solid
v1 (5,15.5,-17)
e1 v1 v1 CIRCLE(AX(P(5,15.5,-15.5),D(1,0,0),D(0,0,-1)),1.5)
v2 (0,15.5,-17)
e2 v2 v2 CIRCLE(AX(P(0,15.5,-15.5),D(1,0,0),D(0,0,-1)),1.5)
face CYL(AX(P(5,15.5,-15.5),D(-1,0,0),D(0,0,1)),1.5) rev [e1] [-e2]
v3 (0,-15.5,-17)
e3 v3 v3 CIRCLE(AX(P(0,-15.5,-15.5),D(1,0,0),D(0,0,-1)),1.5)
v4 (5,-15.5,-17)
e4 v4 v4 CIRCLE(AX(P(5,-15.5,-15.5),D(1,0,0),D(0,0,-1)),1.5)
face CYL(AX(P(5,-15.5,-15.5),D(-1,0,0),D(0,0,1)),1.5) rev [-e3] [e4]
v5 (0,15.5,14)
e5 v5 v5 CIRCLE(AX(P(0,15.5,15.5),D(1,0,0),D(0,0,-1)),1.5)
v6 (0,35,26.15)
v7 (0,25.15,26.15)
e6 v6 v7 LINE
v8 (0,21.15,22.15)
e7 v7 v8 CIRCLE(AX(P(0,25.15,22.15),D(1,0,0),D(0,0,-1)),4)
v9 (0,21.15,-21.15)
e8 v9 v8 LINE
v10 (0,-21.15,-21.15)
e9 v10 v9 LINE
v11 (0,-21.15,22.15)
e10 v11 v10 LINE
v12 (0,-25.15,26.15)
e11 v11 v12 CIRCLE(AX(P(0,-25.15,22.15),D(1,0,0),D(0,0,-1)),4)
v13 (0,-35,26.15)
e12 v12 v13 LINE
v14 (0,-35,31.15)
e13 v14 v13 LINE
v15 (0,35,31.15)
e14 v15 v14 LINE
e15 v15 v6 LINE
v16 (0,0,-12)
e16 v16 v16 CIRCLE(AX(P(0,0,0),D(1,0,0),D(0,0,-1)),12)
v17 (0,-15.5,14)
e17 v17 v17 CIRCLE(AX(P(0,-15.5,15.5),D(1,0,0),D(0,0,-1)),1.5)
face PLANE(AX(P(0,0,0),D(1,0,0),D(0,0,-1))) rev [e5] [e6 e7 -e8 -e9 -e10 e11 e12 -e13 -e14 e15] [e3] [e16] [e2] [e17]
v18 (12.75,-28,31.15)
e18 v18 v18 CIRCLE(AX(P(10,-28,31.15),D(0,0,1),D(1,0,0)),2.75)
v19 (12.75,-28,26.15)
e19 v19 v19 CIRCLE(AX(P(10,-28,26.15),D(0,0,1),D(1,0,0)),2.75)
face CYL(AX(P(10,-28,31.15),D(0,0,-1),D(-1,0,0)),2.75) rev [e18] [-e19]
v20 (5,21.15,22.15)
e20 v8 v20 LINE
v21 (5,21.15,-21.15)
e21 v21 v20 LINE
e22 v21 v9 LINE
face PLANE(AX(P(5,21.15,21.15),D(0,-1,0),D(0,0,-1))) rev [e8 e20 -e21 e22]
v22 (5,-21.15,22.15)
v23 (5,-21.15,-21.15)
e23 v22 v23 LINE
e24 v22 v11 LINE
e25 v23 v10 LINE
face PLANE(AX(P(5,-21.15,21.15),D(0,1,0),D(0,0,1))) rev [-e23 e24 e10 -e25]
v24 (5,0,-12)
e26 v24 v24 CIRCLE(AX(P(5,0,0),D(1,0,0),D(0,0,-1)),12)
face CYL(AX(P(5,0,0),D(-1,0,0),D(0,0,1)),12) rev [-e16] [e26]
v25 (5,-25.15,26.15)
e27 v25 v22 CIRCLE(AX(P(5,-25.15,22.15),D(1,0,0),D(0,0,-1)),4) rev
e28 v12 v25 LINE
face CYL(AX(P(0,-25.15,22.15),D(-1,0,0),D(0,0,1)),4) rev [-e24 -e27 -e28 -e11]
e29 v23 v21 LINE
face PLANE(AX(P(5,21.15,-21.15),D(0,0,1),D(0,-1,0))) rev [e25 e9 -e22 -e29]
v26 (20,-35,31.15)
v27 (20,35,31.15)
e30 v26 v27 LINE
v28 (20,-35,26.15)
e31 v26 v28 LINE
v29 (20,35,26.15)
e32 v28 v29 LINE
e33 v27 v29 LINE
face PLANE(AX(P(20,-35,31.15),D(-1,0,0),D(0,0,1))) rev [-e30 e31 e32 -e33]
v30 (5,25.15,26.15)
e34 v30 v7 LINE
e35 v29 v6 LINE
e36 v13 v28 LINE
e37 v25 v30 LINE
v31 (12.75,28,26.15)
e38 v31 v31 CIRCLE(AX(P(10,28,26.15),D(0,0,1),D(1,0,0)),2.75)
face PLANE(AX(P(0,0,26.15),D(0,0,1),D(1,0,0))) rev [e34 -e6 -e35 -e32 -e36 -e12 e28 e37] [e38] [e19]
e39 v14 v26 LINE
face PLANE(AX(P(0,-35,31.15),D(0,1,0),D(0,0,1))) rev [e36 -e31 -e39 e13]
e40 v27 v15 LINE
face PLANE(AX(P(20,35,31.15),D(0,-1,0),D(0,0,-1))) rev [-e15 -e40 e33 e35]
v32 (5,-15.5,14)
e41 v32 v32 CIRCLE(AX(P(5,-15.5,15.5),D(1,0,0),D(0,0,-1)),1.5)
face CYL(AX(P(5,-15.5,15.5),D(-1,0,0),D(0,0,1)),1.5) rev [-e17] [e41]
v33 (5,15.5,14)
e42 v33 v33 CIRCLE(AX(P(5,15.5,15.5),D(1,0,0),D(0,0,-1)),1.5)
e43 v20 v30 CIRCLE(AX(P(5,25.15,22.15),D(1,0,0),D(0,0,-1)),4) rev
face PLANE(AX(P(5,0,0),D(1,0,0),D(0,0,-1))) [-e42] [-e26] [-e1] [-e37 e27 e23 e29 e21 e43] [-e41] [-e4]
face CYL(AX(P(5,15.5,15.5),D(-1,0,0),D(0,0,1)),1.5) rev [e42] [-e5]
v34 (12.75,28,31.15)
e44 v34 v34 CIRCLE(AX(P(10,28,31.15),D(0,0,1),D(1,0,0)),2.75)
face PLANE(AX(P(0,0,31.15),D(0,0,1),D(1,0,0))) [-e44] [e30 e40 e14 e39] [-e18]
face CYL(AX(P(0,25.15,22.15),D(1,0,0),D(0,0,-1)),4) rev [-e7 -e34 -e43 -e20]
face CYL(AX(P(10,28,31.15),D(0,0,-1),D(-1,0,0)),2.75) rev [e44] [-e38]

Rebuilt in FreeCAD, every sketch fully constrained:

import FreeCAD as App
import Part
import Sketcher

V = App.Vector


def edges_at(feature, points):
    """Names of the edges that pass closest to the given points."""
    edges = feature.Shape.Edges
    near = lambda p: min(range(len(edges)), key=lambda i: edges[i].distToShape(Part.Vertex(*p))[0])
    return sorted({f"Edge{near(p) + 1}" for p in points})


def add_polygon(sketch, points):
    """Adds a closed chain of lines whose ends are joined by coincident constraints."""
    first, n = sketch.GeometryCount, len(points)
    for a, b in zip(points, points[1:] + points[:1]):
        sketch.addGeometry(Part.LineSegment(App.Vector(*a, 0), App.Vector(*b, 0)), False)
    for i in range(n):
        sketch.addConstraint(Sketcher.Constraint("Coincident", first + i, 2, first + (i + 1) % n, 1))

doc = App.newDocument("Part")
body = doc.addObject("PartDesign::Body", "Body")

# Sketch on YZ plane
sketch1 = body.newObject("Sketcher::SketchObject", "Sketch")
sketch1.AttachmentSupport = (doc.getObject("YZ_Plane"), [""])
sketch1.MapMode = "FlatFace"
add_polygon(sketch1, [(21.1, 21.1), (-21.1, 21.1), (-21.1, -21.1), (21.1, -21.1)])  # lines 0-3
sketch1.addGeometry(Part.Circle(V(-15.5, 15.5, 0), V(0, 0, 1), 1.5), False)  # 4
sketch1.addGeometry(Part.Circle(V(-15.5, -15.5, 0), V(0, 0, 1), 1.5), False)  # 5
sketch1.addGeometry(Part.Circle(V(15.5, 15.5, 0), V(0, 0, 1), 1.5), False)  # 6
sketch1.addGeometry(Part.Circle(V(0, 0, 0), V(0, 0, 1), 12), False)  # 7
sketch1.addGeometry(Part.Circle(V(15.5, -15.5, 0), V(0, 0, 1), 1.5), False)  # 8
sketch1.addConstraint(Sketcher.Constraint("Horizontal", 0))
sketch1.addConstraint(Sketcher.Constraint("Vertical", 1))
sketch1.addConstraint(Sketcher.Constraint("Horizontal", 2))
sketch1.addConstraint(Sketcher.Constraint("Vertical", 3))
sketch1.addConstraint(Sketcher.Constraint("Coincident", 7, 3, -1, 1))
sketch1.addConstraint(Sketcher.Constraint("Equal", 4, 5))
sketch1.addConstraint(Sketcher.Constraint("Equal", 5, 6))
sketch1.addConstraint(Sketcher.Constraint("Equal", 6, 8))
sketch1.addConstraint(Sketcher.Constraint("Symmetric", 5, 3, 6, 3, -1, 1))
sketch1.addConstraint(Sketcher.Constraint("Symmetric", 4, 3, 8, 3, -1, 1))
sketch1.addConstraint(Sketcher.Constraint("Symmetric", 0, 2, 2, 2, -1, 1))
sketch1.addConstraint(Sketcher.Constraint("Symmetric", 4, 3, 6, 3, -2))
sketch1.addConstraint(Sketcher.Constraint("Equal", 2, 1))
sketch1.addConstraint(Sketcher.Constraint("Diameter", 4, 3.0))
sketch1.addConstraint(Sketcher.Constraint("Diameter", 7, 24.0))
sketch1.addConstraint(Sketcher.Constraint("DistanceX", 0, 2, 0, 1, 42.3))
sketch1.addConstraint(Sketcher.Constraint("DistanceY", 5, 3, 4, 3, 31.0))
sketch1.addConstraint(Sketcher.Constraint("DistanceX", 4, 3, 6, 3, 31.0))
pad1 = body.newObject("PartDesign::Pad", "Pad")
pad1.Profile = sketch1
pad1.Length = 5

# Sketch on XY plane
sketch2 = body.newObject("Sketcher::SketchObject", "Sketch001")
sketch2.AttachmentSupport = (doc.getObject("XY_Plane"), [""])
sketch2.MapMode = "FlatFace"
sketch2.AttachmentOffset = App.Placement(V(0, 0, 21.15), App.Rotation())
add_polygon(sketch2, [(0, 21), (0, -21), (5, -21), (5, 21)])  # lines 0-3
sketch2.addConstraint(Sketcher.Constraint("Vertical", 0))
sketch2.addConstraint(Sketcher.Constraint("Horizontal", 1))
sketch2.addConstraint(Sketcher.Constraint("Vertical", 2))
sketch2.addConstraint(Sketcher.Constraint("Horizontal", 3))
sketch2.addConstraint(Sketcher.Constraint("Symmetric", 0, 2, 3, 2, -1, 1))
sketch2.addConstraint(Sketcher.Constraint("DistanceX", 1, 1, 1, 2, 5.0))
sketch2.addConstraint(Sketcher.Constraint("DistanceY", 0, 2, 0, 1, 42.3))
pad2 = body.newObject("PartDesign::Pad", "Pad001")
pad2.Profile = sketch2
pad2.Length = 5

# Sketch on XY plane
sketch3 = body.newObject("Sketcher::SketchObject", "Sketch002")
sketch3.AttachmentSupport = (doc.getObject("XY_Plane"), [""])
sketch3.MapMode = "FlatFace"
sketch3.AttachmentOffset = App.Placement(V(0, 0, 26.15), App.Rotation())
add_polygon(sketch3, [(0, 35), (0, -35), (20, -35), (20, 35)])  # lines 0-3
sketch3.addGeometry(Part.Circle(V(10, -28, 0), V(0, 0, 1), 2.8), False)  # 4
sketch3.addGeometry(Part.Circle(V(10, 28, 0), V(0, 0, 1), 2.8), False)  # 5
sketch3.addConstraint(Sketcher.Constraint("Vertical", 0))
sketch3.addConstraint(Sketcher.Constraint("Horizontal", 1))
sketch3.addConstraint(Sketcher.Constraint("Vertical", 2))
sketch3.addConstraint(Sketcher.Constraint("Horizontal", 3))
sketch3.addConstraint(Sketcher.Constraint("Equal", 4, 5))
sketch3.addConstraint(Sketcher.Constraint("Symmetric", 0, 2, 3, 2, -1, 1))
sketch3.addConstraint(Sketcher.Constraint("Symmetric", 4, 3, 5, 3, -1))
sketch3.addConstraint(Sketcher.Constraint("Diameter", 4, 5.5))
sketch3.addConstraint(Sketcher.Constraint("DistanceX", 1, 1, 1, 2, 20.0))
sketch3.addConstraint(Sketcher.Constraint("DistanceY", 0, 2, 0, 1, 70.0))
sketch3.addConstraint(Sketcher.Constraint("DistanceX", -1, 1, 4, 3, 10.0))
sketch3.addConstraint(Sketcher.Constraint("DistanceY", 4, 3, -1, 1, 28.0))
pad3 = body.newObject("PartDesign::Pad", "Pad002")
pad3.Profile = sketch3
pad3.Length = 5
doc.recompute()

fillet = body.newObject("PartDesign::Fillet", "Fillet")
fillet.Base = (pad3, edges_at(pad3, [(2.5, -21.15, 26.15), (2.5, 21.15, 26.15)]))
fillet.Radius = 4

doc.recompute()
